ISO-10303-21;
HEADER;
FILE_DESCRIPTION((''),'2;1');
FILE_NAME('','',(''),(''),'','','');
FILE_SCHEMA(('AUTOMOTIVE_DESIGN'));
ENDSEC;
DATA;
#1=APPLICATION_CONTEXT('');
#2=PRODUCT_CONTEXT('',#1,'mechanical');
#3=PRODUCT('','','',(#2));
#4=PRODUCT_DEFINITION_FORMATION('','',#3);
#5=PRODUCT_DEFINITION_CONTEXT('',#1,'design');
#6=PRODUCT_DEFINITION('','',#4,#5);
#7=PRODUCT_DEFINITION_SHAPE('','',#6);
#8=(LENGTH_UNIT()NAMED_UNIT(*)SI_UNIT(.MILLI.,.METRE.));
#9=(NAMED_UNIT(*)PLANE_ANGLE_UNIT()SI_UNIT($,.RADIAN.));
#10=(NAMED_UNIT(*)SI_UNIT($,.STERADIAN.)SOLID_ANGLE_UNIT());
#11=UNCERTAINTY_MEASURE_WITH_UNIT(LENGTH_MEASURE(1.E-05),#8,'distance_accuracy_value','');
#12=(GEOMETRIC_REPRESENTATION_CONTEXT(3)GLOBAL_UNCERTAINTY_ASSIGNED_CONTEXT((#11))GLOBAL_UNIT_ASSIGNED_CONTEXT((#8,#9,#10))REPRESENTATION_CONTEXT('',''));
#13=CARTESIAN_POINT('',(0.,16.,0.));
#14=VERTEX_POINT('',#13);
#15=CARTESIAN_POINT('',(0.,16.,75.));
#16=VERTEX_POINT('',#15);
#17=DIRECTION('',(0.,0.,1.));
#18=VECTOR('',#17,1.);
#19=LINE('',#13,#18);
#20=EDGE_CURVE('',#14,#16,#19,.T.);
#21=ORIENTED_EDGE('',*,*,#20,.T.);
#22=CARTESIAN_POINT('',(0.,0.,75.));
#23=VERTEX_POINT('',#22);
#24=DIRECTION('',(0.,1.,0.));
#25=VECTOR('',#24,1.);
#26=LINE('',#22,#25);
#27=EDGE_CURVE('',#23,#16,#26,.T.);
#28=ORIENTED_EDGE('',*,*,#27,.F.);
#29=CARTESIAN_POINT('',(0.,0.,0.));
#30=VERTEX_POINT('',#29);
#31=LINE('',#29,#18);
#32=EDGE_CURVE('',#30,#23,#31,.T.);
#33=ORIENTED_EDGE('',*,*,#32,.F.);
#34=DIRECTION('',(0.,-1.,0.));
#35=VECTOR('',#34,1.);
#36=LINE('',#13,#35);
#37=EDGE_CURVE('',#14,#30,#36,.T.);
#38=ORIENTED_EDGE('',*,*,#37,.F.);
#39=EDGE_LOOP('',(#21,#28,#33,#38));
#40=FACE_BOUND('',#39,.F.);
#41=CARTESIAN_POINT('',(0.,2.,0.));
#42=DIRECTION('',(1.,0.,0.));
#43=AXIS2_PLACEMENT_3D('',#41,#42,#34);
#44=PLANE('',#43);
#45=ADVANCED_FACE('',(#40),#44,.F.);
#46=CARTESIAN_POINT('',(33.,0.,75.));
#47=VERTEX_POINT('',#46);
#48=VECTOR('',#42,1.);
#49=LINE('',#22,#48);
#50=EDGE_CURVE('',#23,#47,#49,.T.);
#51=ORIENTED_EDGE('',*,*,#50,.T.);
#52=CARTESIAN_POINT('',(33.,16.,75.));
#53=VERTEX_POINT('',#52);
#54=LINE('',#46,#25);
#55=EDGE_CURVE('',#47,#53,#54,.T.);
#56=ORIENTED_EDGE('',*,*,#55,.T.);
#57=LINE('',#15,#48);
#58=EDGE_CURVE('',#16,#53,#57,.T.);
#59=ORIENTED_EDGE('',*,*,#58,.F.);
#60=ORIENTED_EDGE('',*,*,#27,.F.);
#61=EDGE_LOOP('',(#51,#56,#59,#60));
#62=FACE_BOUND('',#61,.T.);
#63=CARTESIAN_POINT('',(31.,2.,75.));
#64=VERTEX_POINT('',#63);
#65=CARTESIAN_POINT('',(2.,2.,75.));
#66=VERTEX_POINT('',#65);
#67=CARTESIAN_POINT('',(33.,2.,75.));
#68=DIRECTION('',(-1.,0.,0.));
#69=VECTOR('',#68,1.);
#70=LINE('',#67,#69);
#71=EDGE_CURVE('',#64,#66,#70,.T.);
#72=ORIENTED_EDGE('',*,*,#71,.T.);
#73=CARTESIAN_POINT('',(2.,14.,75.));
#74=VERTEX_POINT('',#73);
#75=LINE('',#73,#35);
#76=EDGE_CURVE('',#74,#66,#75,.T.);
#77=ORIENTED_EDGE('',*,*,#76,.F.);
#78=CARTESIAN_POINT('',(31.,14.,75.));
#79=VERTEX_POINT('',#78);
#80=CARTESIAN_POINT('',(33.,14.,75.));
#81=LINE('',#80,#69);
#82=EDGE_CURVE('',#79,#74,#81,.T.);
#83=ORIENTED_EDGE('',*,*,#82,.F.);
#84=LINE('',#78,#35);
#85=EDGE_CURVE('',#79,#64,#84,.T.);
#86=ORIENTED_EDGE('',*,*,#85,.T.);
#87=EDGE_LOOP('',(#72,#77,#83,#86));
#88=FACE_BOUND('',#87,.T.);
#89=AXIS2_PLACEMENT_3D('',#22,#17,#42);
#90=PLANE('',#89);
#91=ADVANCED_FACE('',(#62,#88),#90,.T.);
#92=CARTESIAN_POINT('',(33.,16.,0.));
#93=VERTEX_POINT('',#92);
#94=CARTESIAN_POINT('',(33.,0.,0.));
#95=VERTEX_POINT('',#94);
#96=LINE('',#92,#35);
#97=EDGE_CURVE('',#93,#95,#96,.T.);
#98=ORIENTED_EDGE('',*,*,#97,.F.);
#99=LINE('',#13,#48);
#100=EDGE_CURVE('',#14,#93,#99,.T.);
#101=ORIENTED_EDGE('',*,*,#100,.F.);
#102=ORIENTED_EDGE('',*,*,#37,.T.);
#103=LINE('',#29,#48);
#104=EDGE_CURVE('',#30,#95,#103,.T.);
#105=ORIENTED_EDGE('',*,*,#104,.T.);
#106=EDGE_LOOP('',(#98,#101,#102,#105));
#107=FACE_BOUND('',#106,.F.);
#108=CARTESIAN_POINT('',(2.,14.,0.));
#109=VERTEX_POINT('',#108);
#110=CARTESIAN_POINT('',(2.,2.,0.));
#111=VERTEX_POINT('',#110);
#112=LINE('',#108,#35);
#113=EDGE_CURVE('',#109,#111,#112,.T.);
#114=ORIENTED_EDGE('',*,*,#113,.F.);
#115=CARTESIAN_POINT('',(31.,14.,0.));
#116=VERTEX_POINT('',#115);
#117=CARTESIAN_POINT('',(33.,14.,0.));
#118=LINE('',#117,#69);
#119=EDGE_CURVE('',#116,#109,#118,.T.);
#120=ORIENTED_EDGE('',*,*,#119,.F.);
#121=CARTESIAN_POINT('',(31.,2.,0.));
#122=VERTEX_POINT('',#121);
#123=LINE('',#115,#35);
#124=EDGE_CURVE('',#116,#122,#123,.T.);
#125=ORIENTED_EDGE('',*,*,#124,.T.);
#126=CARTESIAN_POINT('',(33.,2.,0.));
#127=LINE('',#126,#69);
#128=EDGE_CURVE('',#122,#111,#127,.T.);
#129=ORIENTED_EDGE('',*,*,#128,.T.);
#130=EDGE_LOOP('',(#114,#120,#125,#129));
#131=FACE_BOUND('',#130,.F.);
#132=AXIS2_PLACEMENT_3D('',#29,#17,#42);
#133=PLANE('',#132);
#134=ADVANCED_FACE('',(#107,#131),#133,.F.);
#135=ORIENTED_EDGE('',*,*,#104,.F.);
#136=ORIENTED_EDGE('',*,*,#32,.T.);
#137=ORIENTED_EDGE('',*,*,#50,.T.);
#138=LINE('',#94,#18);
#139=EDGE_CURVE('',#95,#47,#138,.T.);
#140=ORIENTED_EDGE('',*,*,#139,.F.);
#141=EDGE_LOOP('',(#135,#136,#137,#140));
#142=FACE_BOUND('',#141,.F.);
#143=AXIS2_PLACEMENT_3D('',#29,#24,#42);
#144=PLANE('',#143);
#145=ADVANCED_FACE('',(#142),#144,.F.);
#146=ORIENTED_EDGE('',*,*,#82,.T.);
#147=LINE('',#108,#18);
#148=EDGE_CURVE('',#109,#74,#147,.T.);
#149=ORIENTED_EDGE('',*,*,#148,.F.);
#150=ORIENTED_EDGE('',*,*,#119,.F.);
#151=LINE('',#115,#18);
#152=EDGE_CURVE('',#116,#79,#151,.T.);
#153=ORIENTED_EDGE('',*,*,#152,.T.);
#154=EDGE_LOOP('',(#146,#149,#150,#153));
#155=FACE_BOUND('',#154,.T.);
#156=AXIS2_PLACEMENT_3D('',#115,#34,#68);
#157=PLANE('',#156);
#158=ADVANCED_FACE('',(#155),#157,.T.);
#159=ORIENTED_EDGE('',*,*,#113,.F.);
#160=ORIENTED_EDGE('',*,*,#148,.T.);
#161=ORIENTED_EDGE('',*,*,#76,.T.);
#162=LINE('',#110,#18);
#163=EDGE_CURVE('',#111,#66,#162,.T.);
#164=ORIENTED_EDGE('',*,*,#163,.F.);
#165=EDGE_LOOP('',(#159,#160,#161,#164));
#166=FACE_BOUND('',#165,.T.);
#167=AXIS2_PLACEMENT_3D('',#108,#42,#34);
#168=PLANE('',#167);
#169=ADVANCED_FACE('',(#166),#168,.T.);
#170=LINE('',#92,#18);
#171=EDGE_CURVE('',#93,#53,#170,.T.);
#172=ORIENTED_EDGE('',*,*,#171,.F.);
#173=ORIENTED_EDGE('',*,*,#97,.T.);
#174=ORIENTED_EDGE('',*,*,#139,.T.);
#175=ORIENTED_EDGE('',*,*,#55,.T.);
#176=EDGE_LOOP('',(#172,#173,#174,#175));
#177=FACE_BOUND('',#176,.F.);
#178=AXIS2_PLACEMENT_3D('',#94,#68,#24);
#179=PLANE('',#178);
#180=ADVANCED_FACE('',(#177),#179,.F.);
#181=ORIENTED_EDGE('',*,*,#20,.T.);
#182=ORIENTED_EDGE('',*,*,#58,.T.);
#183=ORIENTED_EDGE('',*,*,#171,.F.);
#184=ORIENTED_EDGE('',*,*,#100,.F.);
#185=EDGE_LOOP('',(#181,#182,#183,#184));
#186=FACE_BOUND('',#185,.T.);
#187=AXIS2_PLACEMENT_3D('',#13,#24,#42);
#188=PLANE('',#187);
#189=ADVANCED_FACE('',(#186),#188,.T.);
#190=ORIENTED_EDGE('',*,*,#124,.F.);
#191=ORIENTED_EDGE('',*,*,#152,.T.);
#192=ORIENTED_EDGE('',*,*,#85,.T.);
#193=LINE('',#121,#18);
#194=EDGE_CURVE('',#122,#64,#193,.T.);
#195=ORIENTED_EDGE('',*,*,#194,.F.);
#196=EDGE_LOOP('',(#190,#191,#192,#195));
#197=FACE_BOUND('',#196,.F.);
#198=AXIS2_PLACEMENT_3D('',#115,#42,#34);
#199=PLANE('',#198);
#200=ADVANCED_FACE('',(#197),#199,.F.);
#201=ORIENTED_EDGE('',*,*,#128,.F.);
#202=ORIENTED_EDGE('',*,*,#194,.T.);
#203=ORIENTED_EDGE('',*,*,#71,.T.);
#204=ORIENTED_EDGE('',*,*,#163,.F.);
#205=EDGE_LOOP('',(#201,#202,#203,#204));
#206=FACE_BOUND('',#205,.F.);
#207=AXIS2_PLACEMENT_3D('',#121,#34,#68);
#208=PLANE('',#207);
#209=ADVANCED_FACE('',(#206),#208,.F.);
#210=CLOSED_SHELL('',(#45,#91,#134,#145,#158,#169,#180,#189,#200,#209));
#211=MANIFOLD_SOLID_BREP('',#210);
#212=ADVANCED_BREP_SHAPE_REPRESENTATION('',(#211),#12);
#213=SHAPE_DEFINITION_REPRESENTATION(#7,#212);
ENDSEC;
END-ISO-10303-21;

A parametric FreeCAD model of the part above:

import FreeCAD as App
import Part
import Sketcher
from FreeCAD import Vector


def add_polygon(sketch, points):
    """Adds a closed chain of lines whose ends are joined by coincident constraints."""
    first, n = sketch.GeometryCount, len(points)
    for a, b in zip(points, points[1:] + points[:1]):
        sketch.addGeometry(Part.LineSegment(App.Vector(*a, 0), App.Vector(*b, 0)), False)
    for i in range(n):
        sketch.addConstraint(Sketcher.Constraint("Coincident", first + i, 2, first + (i + 1) % n, 1))

doc = App.newDocument("Part")
body = doc.addObject("PartDesign::Body", "Body")

sketch1 = body.newObject("Sketcher::SketchObject", "Sketch")
sketch1.AttachmentSupport = (doc.getObject("XY_Plane"), [""])
sketch1.MapMode = "FlatFace"
add_polygon(sketch1, [(0, 0), (33, 0), (33, 16), (0, 16)])
add_polygon(sketch1, [(31, 2), (2, 2), (2, 14), (31, 14)])
sketch1.addConstraint([
    Sketcher.Constraint("Horizontal", 0),
    Sketcher.Constraint("Vertical", 1),
    Sketcher.Constraint("Horizontal", 2),
    Sketcher.Constraint("Vertical", 3),
    Sketcher.Constraint("Horizontal", 4),
    Sketcher.Constraint("Vertical", 5),
    Sketcher.Constraint("Horizontal", 6),
    Sketcher.Constraint("Vertical", 7),
    Sketcher.Constraint("Coincident", 3, 2, -1, 1),
    Sketcher.Constraint("DistanceX", 4, 2, 4, 1, 29.0),
    Sketcher.Constraint("DistanceY", 5, 1, 5, 2, 12.0),
    Sketcher.Constraint("DistanceX", -1, 1, 4, 2, 2.0),
    Sketcher.Constraint("DistanceY", -1, 1, 4, 2, 2.0),
    Sketcher.Constraint("DistanceY", 5, 2, 2, 2, 2.0),
    Sketcher.Constraint("DistanceX", 6, 2, 1, 2, 2.0),
])
pad1 = body.newObject("PartDesign::Pad", "Pad")
pad1.Profile = sketch1
pad1.Length = 75

doc.recompute()
